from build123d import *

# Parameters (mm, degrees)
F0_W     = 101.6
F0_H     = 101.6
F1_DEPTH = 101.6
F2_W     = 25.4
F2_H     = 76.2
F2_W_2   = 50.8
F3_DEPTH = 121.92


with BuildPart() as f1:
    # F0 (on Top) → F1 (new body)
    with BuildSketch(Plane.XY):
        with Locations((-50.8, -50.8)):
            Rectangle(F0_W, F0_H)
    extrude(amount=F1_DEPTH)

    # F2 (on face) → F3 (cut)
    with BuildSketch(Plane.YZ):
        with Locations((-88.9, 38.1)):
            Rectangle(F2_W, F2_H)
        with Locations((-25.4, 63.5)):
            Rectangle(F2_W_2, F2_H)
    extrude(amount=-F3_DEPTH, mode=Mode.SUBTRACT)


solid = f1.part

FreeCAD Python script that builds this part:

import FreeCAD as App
import Part
import Sketcher
Q = App.Units.Quantity

doc = App.newDocument("Part")
body = doc.addObject("PartDesign::Body", "Body")

# Sketch on XY plane
sketch1 = doc.addObject("Sketcher::SketchObject", "Sketch")
body.addObject(sketch1)
sketch1.AttachmentSupport = (doc.XY_Plane, [""])
sketch1.MapMode = "FlatFace"
sketch1.addGeometry([
    Part.LineSegment(App.Vector(-102, 0, 0), App.Vector(-102, -102, 0)),
    Part.LineSegment(App.Vector(-102, -102, 0), App.Vector(0, -102, 0)),
    Part.LineSegment(App.Vector(0, -102, 0), App.Vector(0, 0, 0)),
    Part.LineSegment(App.Vector(0, 0, 0), App.Vector(-102, 0, 0)),
], False)
sketch1.addConstraint([
    Sketcher.Constraint("Coincident", 0, 2, 1, 1),
    Sketcher.Constraint("Coincident", 1, 2, 2, 1),
    Sketcher.Constraint("Coincident", 2, 2, 3, 1),
    Sketcher.Constraint("Coincident", 3, 2, 0, 1),
    Sketcher.Constraint("Vertical", 0),
    Sketcher.Constraint("Horizontal", 1),
    Sketcher.Constraint("Vertical", 2),
    Sketcher.Constraint("Horizontal", 3),
    Sketcher.Constraint("Coincident", 2, 2, -1, 1),
    Sketcher.Constraint("Equal", 3, 0),
    Sketcher.Constraint("DistanceX", 1, 1, 1, 2, Q("4 in")),
])
pad1 = doc.addObject("PartDesign::Pad", "Pad")
body.addObject(pad1)
pad1.Profile = sketch1
pad1.Length = Q("4 in")

# Sketch on YZ plane
sketch2 = doc.addObject("Sketcher::SketchObject", "Sketch001")
body.addObject(sketch2)
sketch2.AttachmentSupport = (doc.YZ_Plane, [""])
sketch2.MapMode = "FlatFace"
sketch2.addGeometry([
    Part.LineSegment(App.Vector(-102, 76, 0), App.Vector(-102, 0, 0)),  # 0
    Part.LineSegment(App.Vector(-102, 0, 0), App.Vector(-76, 0, 0)),  # 1
    Part.LineSegment(App.Vector(-76, 0, 0), App.Vector(-76, 76, 0)),  # 2
    Part.LineSegment(App.Vector(-76, 76, 0), App.Vector(-102, 76, 0)),  # 3
    Part.LineSegment(App.Vector(-51, 102, 0), App.Vector(-51, 25, 0)),  # 4
    Part.LineSegment(App.Vector(-51, 25, 0), App.Vector(0, 25, 0)),  # 5
    Part.LineSegment(App.Vector(0, 25, 0), App.Vector(0, 102, 0)),  # 6
    Part.LineSegment(App.Vector(0, 102, 0), App.Vector(-51, 102, 0)),  # 7
], False)
sketch2.addConstraint([
    Sketcher.Constraint("Coincident", 0, 2, 1, 1),
    Sketcher.Constraint("Coincident", 1, 2, 2, 1),
    Sketcher.Constraint("Coincident", 2, 2, 3, 1),
    Sketcher.Constraint("Coincident", 3, 2, 0, 1),
    Sketcher.Constraint("Coincident", 4, 2, 5, 1),
    Sketcher.Constraint("Coincident", 5, 2, 6, 1),
    Sketcher.Constraint("Coincident", 6, 2, 7, 1),
    Sketcher.Constraint("Coincident", 7, 2, 4, 1),
    Sketcher.Constraint("Vertical", 0),
    Sketcher.Constraint("Horizontal", 1),
    Sketcher.Constraint("Vertical", 2),
    Sketcher.Constraint("Horizontal", 3),
    Sketcher.Constraint("Vertical", 4),
    Sketcher.Constraint("Horizontal", 5),
    Sketcher.Constraint("Vertical", 6),
    Sketcher.Constraint("Horizontal", 7),
    Sketcher.Constraint("PointOnObject", 0, 2, -1),
    Sketcher.Constraint("PointOnObject", 5, 2, -2),
    Sketcher.Constraint("Equal", 2, 4),
    Sketcher.Constraint("DistanceX", 1, 1, 1, 2, Q("1 in")),
    Sketcher.Constraint("DistanceX", 5, 1, 5, 2, Q("2 in")),
    Sketcher.Constraint("DistanceY", 0, 2, 0, 1, Q("3 in")),
    Sketcher.Constraint("DistanceX", 0, 2, -1, 1, Q("4 in")),
    Sketcher.Constraint("DistanceY", -1, 1, 4, 2, Q("1 in")),
])
pocket1 = doc.addObject("PartDesign::Pocket", "Pocket")
body.addObject(pocket1)
pocket1.Profile = sketch2
pocket1.Length = Q("4.8 in")

doc.recompute()
